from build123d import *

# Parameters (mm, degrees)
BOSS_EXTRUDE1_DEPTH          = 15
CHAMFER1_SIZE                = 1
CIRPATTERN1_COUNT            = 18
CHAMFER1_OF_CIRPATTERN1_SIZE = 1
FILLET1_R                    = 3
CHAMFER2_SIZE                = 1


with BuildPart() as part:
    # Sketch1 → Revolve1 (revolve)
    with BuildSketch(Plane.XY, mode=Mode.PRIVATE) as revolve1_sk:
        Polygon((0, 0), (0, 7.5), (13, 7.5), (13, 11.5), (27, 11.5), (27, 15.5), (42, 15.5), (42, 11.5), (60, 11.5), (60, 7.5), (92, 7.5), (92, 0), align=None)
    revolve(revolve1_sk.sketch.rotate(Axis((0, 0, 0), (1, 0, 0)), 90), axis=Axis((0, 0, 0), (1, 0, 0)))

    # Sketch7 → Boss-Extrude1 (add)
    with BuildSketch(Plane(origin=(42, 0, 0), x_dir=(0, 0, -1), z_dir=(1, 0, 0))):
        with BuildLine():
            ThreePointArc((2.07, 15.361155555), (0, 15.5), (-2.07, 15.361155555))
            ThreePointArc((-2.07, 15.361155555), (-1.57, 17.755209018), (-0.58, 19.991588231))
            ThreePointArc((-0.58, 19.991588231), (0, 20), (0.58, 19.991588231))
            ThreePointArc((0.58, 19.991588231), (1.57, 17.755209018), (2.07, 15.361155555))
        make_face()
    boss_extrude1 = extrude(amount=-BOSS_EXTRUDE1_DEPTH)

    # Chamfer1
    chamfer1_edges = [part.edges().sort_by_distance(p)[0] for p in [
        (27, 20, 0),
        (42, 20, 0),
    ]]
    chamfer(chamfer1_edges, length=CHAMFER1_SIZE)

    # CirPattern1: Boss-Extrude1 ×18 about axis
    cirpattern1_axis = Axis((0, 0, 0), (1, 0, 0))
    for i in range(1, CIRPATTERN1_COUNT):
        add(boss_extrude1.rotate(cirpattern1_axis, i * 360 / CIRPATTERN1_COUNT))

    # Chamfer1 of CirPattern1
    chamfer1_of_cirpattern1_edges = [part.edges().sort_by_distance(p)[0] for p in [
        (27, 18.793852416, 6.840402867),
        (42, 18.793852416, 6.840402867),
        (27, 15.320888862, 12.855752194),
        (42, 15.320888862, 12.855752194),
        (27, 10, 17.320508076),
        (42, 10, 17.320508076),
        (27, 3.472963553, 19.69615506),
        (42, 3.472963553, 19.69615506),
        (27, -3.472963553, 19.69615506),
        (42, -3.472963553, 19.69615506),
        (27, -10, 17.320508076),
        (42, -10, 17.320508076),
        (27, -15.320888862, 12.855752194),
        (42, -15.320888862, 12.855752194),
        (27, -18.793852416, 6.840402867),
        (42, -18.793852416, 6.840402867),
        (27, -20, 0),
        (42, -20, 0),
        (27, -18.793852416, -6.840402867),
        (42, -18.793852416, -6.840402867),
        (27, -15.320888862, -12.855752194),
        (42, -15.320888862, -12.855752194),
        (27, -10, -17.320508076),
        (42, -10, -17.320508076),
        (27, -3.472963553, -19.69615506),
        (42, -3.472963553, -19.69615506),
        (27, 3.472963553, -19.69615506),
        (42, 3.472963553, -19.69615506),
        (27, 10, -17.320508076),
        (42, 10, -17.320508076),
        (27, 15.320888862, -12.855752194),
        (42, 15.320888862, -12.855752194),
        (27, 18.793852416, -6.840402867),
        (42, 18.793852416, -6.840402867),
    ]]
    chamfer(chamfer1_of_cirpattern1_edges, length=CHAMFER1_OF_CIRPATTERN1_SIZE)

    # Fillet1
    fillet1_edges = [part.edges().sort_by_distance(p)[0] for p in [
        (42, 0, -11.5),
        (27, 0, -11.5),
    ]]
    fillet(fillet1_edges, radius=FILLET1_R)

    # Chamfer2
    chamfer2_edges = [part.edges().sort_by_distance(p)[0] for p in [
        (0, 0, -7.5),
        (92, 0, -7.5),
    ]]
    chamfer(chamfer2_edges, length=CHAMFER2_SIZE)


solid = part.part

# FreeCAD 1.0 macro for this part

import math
import FreeCAD as App
import Part
import Sketcher


def edges_at(feature, points):
    """Names of the edges that pass closest to the given points."""
    edges = feature.Shape.Edges
    near = lambda p: min(range(len(edges)), key=lambda i: edges[i].distToShape(Part.Vertex(*p))[0])
    return sorted({f"Edge{near(p) + 1}" for p in points})


def add_polygon(sketch, points):
    """Adds a closed chain of lines whose ends are joined by coincident constraints."""
    first, n = sketch.GeometryCount, len(points)
    for a, b in zip(points, points[1:] + points[:1]):
        sketch.addGeometry(Part.LineSegment(App.Vector(*a, 0), App.Vector(*b, 0)), False)
    for i in range(n):
        sketch.addConstraint(Sketcher.Constraint("Coincident", first + i, 2, first + (i + 1) % n, 1))

doc = App.newDocument("Part")
body = doc.addObject("PartDesign::Body", "Body")

sketch1 = doc.addObject("Sketcher::SketchObject", "Sketch")
body.addObject(sketch1)
sketch1.AttachmentSupport = (doc.XY_Plane, [""])
sketch1.MapMode = "FlatFace"
add_polygon(sketch1, [(0, 7.5), (0, 0), (92, 0), (92, 7.5), (60, 7.5), (60, 11.5), (42, 11.5), (42, 15.5), (27, 15.5), (27, 11.5), (13, 11.5), (13, 7.5)])
sketch1.addConstraint(Sketcher.Constraint("Vertical", 0))
sketch1.addConstraint(Sketcher.Constraint("Horizontal", 1))
sketch1.addConstraint(Sketcher.Constraint("Vertical", 2))
sketch1.addConstraint(Sketcher.Constraint("Horizontal", 3))
sketch1.addConstraint(Sketcher.Constraint("Vertical", 4))
sketch1.addConstraint(Sketcher.Constraint("Horizontal", 5))
sketch1.addConstraint(Sketcher.Constraint("Vertical", 6))
sketch1.addConstraint(Sketcher.Constraint("Horizontal", 7))
sketch1.addConstraint(Sketcher.Constraint("Vertical", 8))
sketch1.addConstraint(Sketcher.Constraint("Horizontal", 9))
sketch1.addConstraint(Sketcher.Constraint("Vertical", 10))
sketch1.addConstraint(Sketcher.Constraint("Horizontal", 11))
sketch1.addConstraint(Sketcher.Constraint("Coincident", 0, 2, -1, 1))
sketch1.addConstraint(Sketcher.Constraint("Horizontal", 5, 2, 8, 2))
sketch1.addConstraint(Sketcher.Constraint("Horizontal", 3, 2, 10, 2))
sketch1.addConstraint(Sketcher.Constraint("Equal", 4, 6))
sketch1.addConstraint(Sketcher.Constraint("DistanceX", 1, 1, 1, 2, 92.0))
sketch1.addConstraint(Sketcher.Constraint("DistanceX", 3, 2, 3, 1, 32.0))
sketch1.addConstraint(Sketcher.Constraint("DistanceX", 5, 2, 5, 1, 18.0))
sketch1.addConstraint(Sketcher.Constraint("DistanceX", 7, 2, 7, 1, 15.0))
sketch1.addConstraint(Sketcher.Constraint("DistanceX", 9, 2, 9, 1, 14.0))
sketch1.addConstraint(Sketcher.Constraint("DistanceY", 4, 1, 4, 2, 4.0))
sketch1.addConstraint(Sketcher.Constraint("DistanceY", 0, 2, 0, 1, 7.5))
revolution = doc.addObject("PartDesign::Revolution", "Revolution")
body.addObject(revolution)
revolution.Profile = sketch1
revolution.ReferenceAxis = (sketch1, ["H_Axis"])
revolution.Angle = 360

sketch2 = doc.addObject("Sketcher::SketchObject", "Sketch001")
body.addObject(sketch2)
sketch2.AttachmentSupport = (doc.YZ_Plane, [""])
sketch2.MapMode = "FlatFace"
sketch2.AttachmentOffset = App.Placement(App.Vector(0, 0, 42), App.Rotation())
sketch2.addGeometry(Part.ArcOfCircle(Part.Circle(App.Vector(0, 0, 0), App.Vector(0, 0, 1), 15.5), math.radians(-7.674689), math.radians(7.674689)), False)
sketch2.addGeometry(Part.ArcOfCircle(Part.Circle(App.Vector(14.195717, 9.491738, 0), App.Vector(0, 0, 1), 11.620329), math.radians(-84.243951), math.radians(-60.081341)), False)
sketch2.addGeometry(Part.ArcOfCircle(Part.Circle(App.Vector(0, 0, 0), App.Vector(0, 0, 1), 20), math.radians(-1.661811), math.radians(1.661811)), False)
sketch2.addGeometry(Part.ArcOfCircle(Part.Circle(App.Vector(14.195717, -9.491738, 0), App.Vector(0, 0, 1), 11.620329), math.radians(60.081341), math.radians(84.243951)), False)
sketch2.addConstraint(Sketcher.Constraint("Coincident", 0, 1, 1, 1))
sketch2.addConstraint(Sketcher.Constraint("Coincident", 1, 2, 2, 1))
sketch2.addConstraint(Sketcher.Constraint("Coincident", 2, 2, 3, 1))
sketch2.addConstraint(Sketcher.Constraint("Coincident", 3, 2, 0, 2))
sketch2.addConstraint(Sketcher.Constraint("Coincident", 0, 3, -1, 1))
sketch2.addConstraint(Sketcher.Constraint("Coincident", 2, 3, -1, 1))
sketch2.addConstraint(Sketcher.Constraint("Equal", 1, 3))
sketch2.addConstraint(Sketcher.Constraint("Symmetric", 1, 3, 3, 3, -1))
sketch2.addConstraint(Sketcher.Constraint("Radius", 2, 20.0))
sketch2.addConstraint(Sketcher.Constraint("Radius", 0, 15.5))
sketch2.addConstraint(Sketcher.Constraint("DistanceY", 0, 1, -1, 1, 2.07))
sketch2.addConstraint(Sketcher.Constraint("DistanceY", 1, 2, -1, 1, 0.58))
sketch2.addConstraint(Sketcher.Constraint("Radius", 1, 11.620329))
pad1 = doc.addObject("PartDesign::Pad", "Pad")
body.addObject(pad1)
pad1.Profile = sketch2
pad1.Length = 15
pad1.Reversed = True
doc.recompute()

chamfer = doc.addObject("PartDesign::Chamfer", "Chamfer")
body.addObject(chamfer)
chamfer.Base = (pad1, edges_at(pad1, [(27, 20, 0), (42, 20, 0)]))
chamfer.Size = 1
doc.recompute()

polarpattern = doc.addObject("PartDesign::PolarPattern", "PolarPattern")
body.addObject(polarpattern)
polarpattern.Originals = [pad1]
polarpattern.Axis = (doc.X_Axis, [""])
polarpattern.Angle = 360
polarpattern.Occurrences = 18
body.Tip = polarpattern
doc.recompute()

chamfer2 = doc.addObject("PartDesign::Chamfer", "Chamfer001")
body.addObject(chamfer2)
chamfer2.Base = (polarpattern, edges_at(polarpattern, [
    (27, 18.794, 6.84),
    (42, 18.794, 6.84),
    (27, 15.321, 12.856),
    (42, 15.321, 12.856),
    (27, 10, 17.321),
    (42, 10, 17.321),
    (27, 3.473, 19.696),
    (42, 3.473, 19.696),
    (27, -3.473, 19.696),
    (42, -3.473, 19.696),
    (27, -10, 17.321),
    (42, -10, 17.321),
    (27, -15.321, 12.856),
    (42, -15.321, 12.856),
    (27, -18.794, 6.84),
    (42, -18.794, 6.84),
    (27, -20, 0),
    (42, -20, 0),
    (27, -18.794, -6.84),
    (42, -18.794, -6.84),
    (27, -15.321, -12.856),
    (42, -15.321, -12.856),
    (27, -10, -17.321),
    (42, -10, -17.321),
    (27, -3.473, -19.696),
    (42, -3.473, -19.696),
    (27, 3.473, -19.696),
    (42, 3.473, -19.696),
    (27, 10, -17.321),
    (42, 10, -17.321),
    (27, 15.321, -12.856),
    (42, 15.321, -12.856),
    (27, 18.794, -6.84),
    (42, 18.794, -6.84),
]))
chamfer2.Size = 1
doc.recompute()

fillet = doc.addObject("PartDesign::Fillet", "Fillet")
body.addObject(fillet)
fillet.Base = (chamfer2, edges_at(chamfer2, [(42, 0, -11.5), (27, 0, -11.5)]))
fillet.Radius = 3
doc.recompute()

chamfer3 = doc.addObject("PartDesign::Chamfer", "Chamfer002")
body.addObject(chamfer3)
chamfer3.Base = (fillet, edges_at(fillet, [(0, 0, -7.5), (92, 0, -7.5)]))
chamfer3.Size = 1

doc.recompute()
